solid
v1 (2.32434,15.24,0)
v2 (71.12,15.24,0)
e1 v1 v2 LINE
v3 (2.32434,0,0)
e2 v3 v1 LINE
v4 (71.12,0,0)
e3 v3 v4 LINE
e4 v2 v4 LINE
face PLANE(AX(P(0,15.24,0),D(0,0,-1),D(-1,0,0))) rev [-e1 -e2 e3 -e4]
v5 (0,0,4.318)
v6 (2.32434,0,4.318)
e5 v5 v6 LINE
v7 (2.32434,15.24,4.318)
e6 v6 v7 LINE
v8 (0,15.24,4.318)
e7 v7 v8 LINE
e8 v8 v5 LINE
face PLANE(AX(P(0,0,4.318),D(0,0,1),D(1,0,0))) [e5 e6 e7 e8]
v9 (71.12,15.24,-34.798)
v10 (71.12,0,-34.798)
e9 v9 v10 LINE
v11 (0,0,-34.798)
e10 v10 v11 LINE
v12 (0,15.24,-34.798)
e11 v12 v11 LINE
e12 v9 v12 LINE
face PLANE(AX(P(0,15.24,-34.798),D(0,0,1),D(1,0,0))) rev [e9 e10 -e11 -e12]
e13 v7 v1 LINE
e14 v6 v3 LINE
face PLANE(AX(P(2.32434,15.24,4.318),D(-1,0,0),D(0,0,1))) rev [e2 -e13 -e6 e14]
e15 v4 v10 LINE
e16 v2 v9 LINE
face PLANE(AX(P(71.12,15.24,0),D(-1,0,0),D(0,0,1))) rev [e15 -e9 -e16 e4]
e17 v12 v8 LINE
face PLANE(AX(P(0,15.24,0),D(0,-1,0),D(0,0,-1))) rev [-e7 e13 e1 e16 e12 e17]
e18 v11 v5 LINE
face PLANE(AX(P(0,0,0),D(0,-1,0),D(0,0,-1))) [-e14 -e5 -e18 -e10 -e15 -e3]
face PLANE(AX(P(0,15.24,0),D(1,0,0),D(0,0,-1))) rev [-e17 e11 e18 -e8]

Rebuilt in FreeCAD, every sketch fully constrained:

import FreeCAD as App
import Part
import Sketcher
Q = App.Units.Quantity


def add_polygon(sketch, points):
    """Adds a closed chain of lines whose ends are joined by coincident constraints."""
    first, n = sketch.GeometryCount, len(points)
    for a, b in zip(points, points[1:] + points[:1]):
        sketch.addGeometry(Part.LineSegment(App.Vector(*a, 0), App.Vector(*b, 0)), False)
    for i in range(n):
        sketch.addConstraint(Sketcher.Constraint("Coincident", first + i, 2, first + (i + 1) % n, 1))

doc = App.newDocument("Part")
body = doc.addObject("PartDesign::Body", "Body")

# Sketch on XZ plane
sketch1 = body.newObject("Sketcher::SketchObject", "Sketch")
sketch1.AttachmentSupport = (doc.getObject("XZ_Plane"), [""])
sketch1.MapMode = "FlatFace"
add_polygon(sketch1, [(0, -35), (0, 0), (71, 0), (71, -35)])  # lines 0-3
sketch1.addConstraint([
    Sketcher.Constraint("Vertical", 0),
    Sketcher.Constraint("Horizontal", 1),
    Sketcher.Constraint("Vertical", 2),
    Sketcher.Constraint("Horizontal", 3),
    Sketcher.Constraint("Coincident", 0, 2, -1, 1),
    Sketcher.Constraint("DistanceX", 1, 1, 1, 2, Q("2.8 in")),
    Sketcher.Constraint("DistanceY", 0, 1, 0, 2, Q("1.37 in")),
])
pad1 = body.newObject("PartDesign::Pad", "Pad")
pad1.Profile = sketch1
pad1.Length = Q("0.6 in")
pad1.Reversed = True

# Sketch on XY plane
sketch2 = body.newObject("Sketcher::SketchObject", "Sketch001")
sketch2.AttachmentSupport = (doc.getObject("XY_Plane"), [""])
sketch2.MapMode = "FlatFace"
add_polygon(sketch2, [(0, 15.2), (0, 0), (2.3, 0), (2.3, 15.2)])  # lines 0-3
sketch2.addConstraint([
    Sketcher.Constraint("Vertical", 0),
    Sketcher.Constraint("Horizontal", 1),
    Sketcher.Constraint("Vertical", 2),
    Sketcher.Constraint("Horizontal", 3),
    Sketcher.Constraint("Coincident", 0, 2, -1, 1),
    Sketcher.Constraint("DistanceY", 0, 2, 0, 1, Q("0.6 in")),
    Sketcher.Constraint("DistanceX", 1, 1, 1, 2, 2.32434),
])
pad2 = body.newObject("PartDesign::Pad", "Pad001")
pad2.Profile = sketch2
pad2.Length = Q("0.17 in")

doc.recompute()
